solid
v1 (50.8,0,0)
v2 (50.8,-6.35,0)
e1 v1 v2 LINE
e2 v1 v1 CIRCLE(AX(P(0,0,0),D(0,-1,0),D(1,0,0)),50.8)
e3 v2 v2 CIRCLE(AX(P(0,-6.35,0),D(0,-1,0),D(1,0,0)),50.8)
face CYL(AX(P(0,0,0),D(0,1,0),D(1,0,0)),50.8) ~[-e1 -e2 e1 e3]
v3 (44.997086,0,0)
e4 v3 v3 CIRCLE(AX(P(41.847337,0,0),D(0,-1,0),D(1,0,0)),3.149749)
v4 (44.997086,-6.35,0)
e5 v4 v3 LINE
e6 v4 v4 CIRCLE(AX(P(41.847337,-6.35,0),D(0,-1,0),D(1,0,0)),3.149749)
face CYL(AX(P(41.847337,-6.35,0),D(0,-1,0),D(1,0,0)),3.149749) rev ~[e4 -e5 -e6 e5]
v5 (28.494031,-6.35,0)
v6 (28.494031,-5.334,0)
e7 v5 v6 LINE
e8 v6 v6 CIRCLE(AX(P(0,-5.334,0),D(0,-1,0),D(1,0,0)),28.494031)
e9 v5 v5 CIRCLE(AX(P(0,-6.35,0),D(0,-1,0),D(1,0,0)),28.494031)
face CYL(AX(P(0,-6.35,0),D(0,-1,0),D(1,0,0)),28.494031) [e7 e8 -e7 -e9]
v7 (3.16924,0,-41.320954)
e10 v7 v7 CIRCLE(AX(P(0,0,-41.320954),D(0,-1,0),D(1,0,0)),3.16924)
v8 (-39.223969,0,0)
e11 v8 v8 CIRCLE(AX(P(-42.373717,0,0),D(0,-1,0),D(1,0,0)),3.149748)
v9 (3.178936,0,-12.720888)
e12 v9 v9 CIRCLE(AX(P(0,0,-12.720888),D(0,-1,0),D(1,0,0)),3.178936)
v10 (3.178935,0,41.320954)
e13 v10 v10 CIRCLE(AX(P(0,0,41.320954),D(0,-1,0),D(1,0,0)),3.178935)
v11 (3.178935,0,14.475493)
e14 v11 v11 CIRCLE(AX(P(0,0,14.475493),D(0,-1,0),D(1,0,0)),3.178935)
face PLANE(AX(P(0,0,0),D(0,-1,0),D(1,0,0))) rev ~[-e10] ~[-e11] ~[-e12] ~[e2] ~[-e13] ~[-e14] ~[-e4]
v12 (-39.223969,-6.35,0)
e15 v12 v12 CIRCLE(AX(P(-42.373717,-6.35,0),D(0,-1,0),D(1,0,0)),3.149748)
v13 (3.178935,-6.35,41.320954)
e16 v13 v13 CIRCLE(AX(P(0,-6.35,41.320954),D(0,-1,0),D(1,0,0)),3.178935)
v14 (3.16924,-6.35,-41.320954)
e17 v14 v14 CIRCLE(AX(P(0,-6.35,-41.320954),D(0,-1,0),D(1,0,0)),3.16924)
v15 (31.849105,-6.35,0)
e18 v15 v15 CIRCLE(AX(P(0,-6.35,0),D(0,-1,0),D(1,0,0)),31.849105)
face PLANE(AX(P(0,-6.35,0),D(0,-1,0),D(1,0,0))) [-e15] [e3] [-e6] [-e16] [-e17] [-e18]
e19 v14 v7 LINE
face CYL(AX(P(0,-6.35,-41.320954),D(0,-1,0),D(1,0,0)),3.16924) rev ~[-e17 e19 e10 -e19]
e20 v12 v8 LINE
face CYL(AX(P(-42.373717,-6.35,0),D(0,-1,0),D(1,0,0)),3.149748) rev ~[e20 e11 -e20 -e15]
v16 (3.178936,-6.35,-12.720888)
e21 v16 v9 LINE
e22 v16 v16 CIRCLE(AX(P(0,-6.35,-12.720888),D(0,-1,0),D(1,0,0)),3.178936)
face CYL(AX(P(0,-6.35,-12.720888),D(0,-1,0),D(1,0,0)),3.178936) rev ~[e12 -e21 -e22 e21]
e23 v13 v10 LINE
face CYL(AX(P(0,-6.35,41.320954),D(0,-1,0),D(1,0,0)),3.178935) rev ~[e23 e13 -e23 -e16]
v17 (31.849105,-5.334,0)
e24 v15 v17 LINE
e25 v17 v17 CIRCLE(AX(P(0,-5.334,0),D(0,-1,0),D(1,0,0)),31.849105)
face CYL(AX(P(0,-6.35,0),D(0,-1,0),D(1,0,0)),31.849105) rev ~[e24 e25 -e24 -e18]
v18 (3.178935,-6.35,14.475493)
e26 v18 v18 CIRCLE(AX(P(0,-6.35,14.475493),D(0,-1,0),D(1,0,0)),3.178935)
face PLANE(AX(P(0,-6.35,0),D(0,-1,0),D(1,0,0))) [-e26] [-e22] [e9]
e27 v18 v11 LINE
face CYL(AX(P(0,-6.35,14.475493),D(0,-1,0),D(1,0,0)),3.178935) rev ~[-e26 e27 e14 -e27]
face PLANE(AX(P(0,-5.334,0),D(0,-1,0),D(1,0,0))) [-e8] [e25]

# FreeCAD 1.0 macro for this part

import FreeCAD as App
import Part
import Sketcher

V = App.Vector
Q = App.Units.Quantity

doc = App.newDocument("Part")
params = doc.addObject("Spreadsheet::Sheet", "Params")
for row, (alias, value) in enumerate([
    ("sketch1_diameter", "4 in"),
    ("pad1_length", "0.25 in"),
    ("pocket1_length", "0.04 in"),
    ("pocket2_length", "1 in"),
    ("pocket3_length", "1 in"),
    ("pocket4_length", "1 in"),
    ("pocket5_length", "1 in"),
    ("pocket6_length", "1 in"),
    ("pocket7_length", "1 in"),
], start=1):
    params.set(f"A{row}", alias)
    params.set(f"B{row}", "=" + value)
    params.setAlias(f"B{row}", alias)

body = doc.addObject("PartDesign::Body", "Body")

# Sketch on XZ plane
sketch1 = doc.addObject("Sketcher::SketchObject", "Sketch")
body.addObject(sketch1)
sketch1.AttachmentSupport = (doc.XZ_Plane, [""])
sketch1.MapMode = "FlatFace"
sketch1.addGeometry(Part.Circle(V(0, 0, 0), V(0, 0, 1), 51), False)
sketch1.addConstraint([
    Sketcher.Constraint("Coincident", 0, 3, -1, 1),
    Sketcher.Constraint("Diameter", 0, Q("4 in")),
])
sketch1.setExpression("Constraints[1]", "Params.sketch1_diameter")
pad1 = doc.addObject("PartDesign::Pad", "Pad")
body.addObject(pad1)
pad1.Profile = sketch1
pad1.setExpression("Length", "Params.pad1_length")

# Sketch on XZ plane
sketch2 = doc.addObject("Sketcher::SketchObject", "Sketch001")
body.addObject(sketch2)
sketch2.AttachmentSupport = (doc.XZ_Plane, [""])
sketch2.MapMode = "FlatFace"
sketch2.AttachmentOffset = App.Placement(V(0, 0, 0.25 * 25.4), App.Rotation())
sketch2.addGeometry([
    Part.Circle(V(0, 0, 0), V(0, 0, 1), 32),
    Part.Circle(V(0, 0, 0), V(0, 0, 1), 28),
], False)
sketch2.addConstraint([
    Sketcher.Constraint("Coincident", 0, 3, -1, 1),
    Sketcher.Constraint("Coincident", 1, 3, -1, 1),
    Sketcher.Constraint("Diameter", 0, Q("63.69821 mm")),
    Sketcher.Constraint("Diameter", 1, Q("56.988062 mm")),
])
pocket1 = doc.addObject("PartDesign::Pocket", "Pocket")
body.addObject(pocket1)
pocket1.Profile = sketch2
pocket1.setExpression("Length", "Params.pocket1_length")

# Sketch on XZ plane
sketch3 = doc.addObject("Sketcher::SketchObject", "Sketch002")
body.addObject(sketch3)
sketch3.AttachmentSupport = (doc.XZ_Plane, [""])
sketch3.MapMode = "FlatFace"
sketch3.AttachmentOffset = App.Placement(V(0, 0, 0.25 * 25.4), App.Rotation())
sketch3.addGeometry(Part.Circle(V(0, 14.5, 0), V(0, 0, 1), 3.2), False)
sketch3.addConstraint([
    Sketcher.Constraint("PointOnObject", 0, 3, -2),
    Sketcher.Constraint("Diameter", 0, Q("6.35787 mm")),
    Sketcher.Constraint("DistanceY", -1, 1, 0, 3, Q("14.475493 mm")),
])
pocket2 = doc.addObject("PartDesign::Pocket", "Pocket001")
body.addObject(pocket2)
pocket2.Profile = sketch3
pocket2.setExpression("Length", "Params.pocket2_length")

# Sketch on XZ plane
sketch4 = doc.addObject("Sketcher::SketchObject", "Sketch003")
body.addObject(sketch4)
sketch4.AttachmentSupport = (doc.XZ_Plane, [""])
sketch4.MapMode = "FlatFace"
sketch4.AttachmentOffset = App.Placement(V(0, 0, 0.25 * 25.4), App.Rotation())
sketch4.addGeometry(Part.Circle(V(0, -12.7, 0), V(0, 0, 1), 3.2), False)
sketch4.addConstraint([
    Sketcher.Constraint("PointOnObject", 0, 3, -2),
    Sketcher.Constraint("Diameter", 0, Q("6.357872 mm")),
    Sketcher.Constraint("DistanceY", 0, 3, -1, 1, Q("12.720888 mm")),
])
pocket3 = doc.addObject("PartDesign::Pocket", "Pocket002")
body.addObject(pocket3)
pocket3.Profile = sketch4
pocket3.setExpression("Length", "Params.pocket3_length")

# Sketch on XZ plane
sketch5 = doc.addObject("Sketcher::SketchObject", "Sketch004")
body.addObject(sketch5)
sketch5.AttachmentSupport = (doc.XZ_Plane, [""])
sketch5.MapMode = "FlatFace"
sketch5.AttachmentOffset = App.Placement(V(0, 0, 0.25 * 25.4), App.Rotation())
sketch5.addGeometry(Part.Circle(V(0, 41.3, 0), V(0, 0, 1), 3.2), False)
sketch5.addConstraint([
    Sketcher.Constraint("PointOnObject", 0, 3, -2),
    Sketcher.Constraint("Diameter", 0, Q("6.35787 mm")),
    Sketcher.Constraint("DistanceY", -1, 1, 0, 3, Q("41.320954 mm")),
])
pocket4 = doc.addObject("PartDesign::Pocket", "Pocket003")
body.addObject(pocket4)
pocket4.Profile = sketch5
pocket4.setExpression("Length", "Params.pocket4_length")

# Sketch on XZ plane
sketch6 = doc.addObject("Sketcher::SketchObject", "Sketch005")
body.addObject(sketch6)
sketch6.AttachmentSupport = (doc.XZ_Plane, [""])
sketch6.MapMode = "FlatFace"
sketch6.AttachmentOffset = App.Placement(V(0, 0, 0.25 * 25.4), App.Rotation())
sketch6.addGeometry(Part.Circle(V(41.8, 0, 0), V(0, 0, 1), 3.1), False)
sketch6.addConstraint([
    Sketcher.Constraint("PointOnObject", 0, 3, -1),
    Sketcher.Constraint("Diameter", 0, Q("6.299498 mm")),
    Sketcher.Constraint("DistanceX", -1, 1, 0, 3, Q("41.847337 mm")),
])
pocket5 = doc.addObject("PartDesign::Pocket", "Pocket004")
body.addObject(pocket5)
pocket5.Profile = sketch6
pocket5.setExpression("Length", "Params.pocket5_length")

# Sketch on XZ plane
sketch7 = doc.addObject("Sketcher::SketchObject", "Sketch006")
body.addObject(sketch7)
sketch7.AttachmentSupport = (doc.XZ_Plane, [""])
sketch7.MapMode = "FlatFace"
sketch7.AttachmentOffset = App.Placement(V(0, 0, 0.25 * 25.4), App.Rotation())
sketch7.addGeometry(Part.Circle(V(0, -41.3, 0), V(0, 0, 1), 3.2), False)
sketch7.addConstraint([
    Sketcher.Constraint("PointOnObject", 0, 3, -2),
    Sketcher.Constraint("Diameter", 0, Q("6.33848 mm")),
    Sketcher.Constraint("DistanceY", 0, 3, -1, 1, Q("41.320954 mm")),
])
pocket6 = doc.addObject("PartDesign::Pocket", "Pocket005")
body.addObject(pocket6)
pocket6.Profile = sketch7
pocket6.setExpression("Length", "Params.pocket6_length")

# Sketch on XZ plane
sketch8 = doc.addObject("Sketcher::SketchObject", "Sketch007")
body.addObject(sketch8)
sketch8.AttachmentSupport = (doc.XZ_Plane, [""])
sketch8.MapMode = "FlatFace"
sketch8.AttachmentOffset = App.Placement(V(0, 0, 0.25 * 25.4), App.Rotation())
sketch8.addGeometry(Part.Circle(V(-42.4, 0, 0), V(0, 0, 1), 3.1), False)
sketch8.addConstraint([
    Sketcher.Constraint("PointOnObject", 0, 3, -1),
    Sketcher.Constraint("Diameter", 0, Q("6.299496 mm")),
    Sketcher.Constraint("DistanceX", 0, 3, -1, 1, Q("42.373717 mm")),
])
pocket7 = doc.addObject("PartDesign::Pocket", "Pocket006")
body.addObject(pocket7)
pocket7.Profile = sketch8
pocket7.setExpression("Length", "Params.pocket7_length")

doc.recompute()
